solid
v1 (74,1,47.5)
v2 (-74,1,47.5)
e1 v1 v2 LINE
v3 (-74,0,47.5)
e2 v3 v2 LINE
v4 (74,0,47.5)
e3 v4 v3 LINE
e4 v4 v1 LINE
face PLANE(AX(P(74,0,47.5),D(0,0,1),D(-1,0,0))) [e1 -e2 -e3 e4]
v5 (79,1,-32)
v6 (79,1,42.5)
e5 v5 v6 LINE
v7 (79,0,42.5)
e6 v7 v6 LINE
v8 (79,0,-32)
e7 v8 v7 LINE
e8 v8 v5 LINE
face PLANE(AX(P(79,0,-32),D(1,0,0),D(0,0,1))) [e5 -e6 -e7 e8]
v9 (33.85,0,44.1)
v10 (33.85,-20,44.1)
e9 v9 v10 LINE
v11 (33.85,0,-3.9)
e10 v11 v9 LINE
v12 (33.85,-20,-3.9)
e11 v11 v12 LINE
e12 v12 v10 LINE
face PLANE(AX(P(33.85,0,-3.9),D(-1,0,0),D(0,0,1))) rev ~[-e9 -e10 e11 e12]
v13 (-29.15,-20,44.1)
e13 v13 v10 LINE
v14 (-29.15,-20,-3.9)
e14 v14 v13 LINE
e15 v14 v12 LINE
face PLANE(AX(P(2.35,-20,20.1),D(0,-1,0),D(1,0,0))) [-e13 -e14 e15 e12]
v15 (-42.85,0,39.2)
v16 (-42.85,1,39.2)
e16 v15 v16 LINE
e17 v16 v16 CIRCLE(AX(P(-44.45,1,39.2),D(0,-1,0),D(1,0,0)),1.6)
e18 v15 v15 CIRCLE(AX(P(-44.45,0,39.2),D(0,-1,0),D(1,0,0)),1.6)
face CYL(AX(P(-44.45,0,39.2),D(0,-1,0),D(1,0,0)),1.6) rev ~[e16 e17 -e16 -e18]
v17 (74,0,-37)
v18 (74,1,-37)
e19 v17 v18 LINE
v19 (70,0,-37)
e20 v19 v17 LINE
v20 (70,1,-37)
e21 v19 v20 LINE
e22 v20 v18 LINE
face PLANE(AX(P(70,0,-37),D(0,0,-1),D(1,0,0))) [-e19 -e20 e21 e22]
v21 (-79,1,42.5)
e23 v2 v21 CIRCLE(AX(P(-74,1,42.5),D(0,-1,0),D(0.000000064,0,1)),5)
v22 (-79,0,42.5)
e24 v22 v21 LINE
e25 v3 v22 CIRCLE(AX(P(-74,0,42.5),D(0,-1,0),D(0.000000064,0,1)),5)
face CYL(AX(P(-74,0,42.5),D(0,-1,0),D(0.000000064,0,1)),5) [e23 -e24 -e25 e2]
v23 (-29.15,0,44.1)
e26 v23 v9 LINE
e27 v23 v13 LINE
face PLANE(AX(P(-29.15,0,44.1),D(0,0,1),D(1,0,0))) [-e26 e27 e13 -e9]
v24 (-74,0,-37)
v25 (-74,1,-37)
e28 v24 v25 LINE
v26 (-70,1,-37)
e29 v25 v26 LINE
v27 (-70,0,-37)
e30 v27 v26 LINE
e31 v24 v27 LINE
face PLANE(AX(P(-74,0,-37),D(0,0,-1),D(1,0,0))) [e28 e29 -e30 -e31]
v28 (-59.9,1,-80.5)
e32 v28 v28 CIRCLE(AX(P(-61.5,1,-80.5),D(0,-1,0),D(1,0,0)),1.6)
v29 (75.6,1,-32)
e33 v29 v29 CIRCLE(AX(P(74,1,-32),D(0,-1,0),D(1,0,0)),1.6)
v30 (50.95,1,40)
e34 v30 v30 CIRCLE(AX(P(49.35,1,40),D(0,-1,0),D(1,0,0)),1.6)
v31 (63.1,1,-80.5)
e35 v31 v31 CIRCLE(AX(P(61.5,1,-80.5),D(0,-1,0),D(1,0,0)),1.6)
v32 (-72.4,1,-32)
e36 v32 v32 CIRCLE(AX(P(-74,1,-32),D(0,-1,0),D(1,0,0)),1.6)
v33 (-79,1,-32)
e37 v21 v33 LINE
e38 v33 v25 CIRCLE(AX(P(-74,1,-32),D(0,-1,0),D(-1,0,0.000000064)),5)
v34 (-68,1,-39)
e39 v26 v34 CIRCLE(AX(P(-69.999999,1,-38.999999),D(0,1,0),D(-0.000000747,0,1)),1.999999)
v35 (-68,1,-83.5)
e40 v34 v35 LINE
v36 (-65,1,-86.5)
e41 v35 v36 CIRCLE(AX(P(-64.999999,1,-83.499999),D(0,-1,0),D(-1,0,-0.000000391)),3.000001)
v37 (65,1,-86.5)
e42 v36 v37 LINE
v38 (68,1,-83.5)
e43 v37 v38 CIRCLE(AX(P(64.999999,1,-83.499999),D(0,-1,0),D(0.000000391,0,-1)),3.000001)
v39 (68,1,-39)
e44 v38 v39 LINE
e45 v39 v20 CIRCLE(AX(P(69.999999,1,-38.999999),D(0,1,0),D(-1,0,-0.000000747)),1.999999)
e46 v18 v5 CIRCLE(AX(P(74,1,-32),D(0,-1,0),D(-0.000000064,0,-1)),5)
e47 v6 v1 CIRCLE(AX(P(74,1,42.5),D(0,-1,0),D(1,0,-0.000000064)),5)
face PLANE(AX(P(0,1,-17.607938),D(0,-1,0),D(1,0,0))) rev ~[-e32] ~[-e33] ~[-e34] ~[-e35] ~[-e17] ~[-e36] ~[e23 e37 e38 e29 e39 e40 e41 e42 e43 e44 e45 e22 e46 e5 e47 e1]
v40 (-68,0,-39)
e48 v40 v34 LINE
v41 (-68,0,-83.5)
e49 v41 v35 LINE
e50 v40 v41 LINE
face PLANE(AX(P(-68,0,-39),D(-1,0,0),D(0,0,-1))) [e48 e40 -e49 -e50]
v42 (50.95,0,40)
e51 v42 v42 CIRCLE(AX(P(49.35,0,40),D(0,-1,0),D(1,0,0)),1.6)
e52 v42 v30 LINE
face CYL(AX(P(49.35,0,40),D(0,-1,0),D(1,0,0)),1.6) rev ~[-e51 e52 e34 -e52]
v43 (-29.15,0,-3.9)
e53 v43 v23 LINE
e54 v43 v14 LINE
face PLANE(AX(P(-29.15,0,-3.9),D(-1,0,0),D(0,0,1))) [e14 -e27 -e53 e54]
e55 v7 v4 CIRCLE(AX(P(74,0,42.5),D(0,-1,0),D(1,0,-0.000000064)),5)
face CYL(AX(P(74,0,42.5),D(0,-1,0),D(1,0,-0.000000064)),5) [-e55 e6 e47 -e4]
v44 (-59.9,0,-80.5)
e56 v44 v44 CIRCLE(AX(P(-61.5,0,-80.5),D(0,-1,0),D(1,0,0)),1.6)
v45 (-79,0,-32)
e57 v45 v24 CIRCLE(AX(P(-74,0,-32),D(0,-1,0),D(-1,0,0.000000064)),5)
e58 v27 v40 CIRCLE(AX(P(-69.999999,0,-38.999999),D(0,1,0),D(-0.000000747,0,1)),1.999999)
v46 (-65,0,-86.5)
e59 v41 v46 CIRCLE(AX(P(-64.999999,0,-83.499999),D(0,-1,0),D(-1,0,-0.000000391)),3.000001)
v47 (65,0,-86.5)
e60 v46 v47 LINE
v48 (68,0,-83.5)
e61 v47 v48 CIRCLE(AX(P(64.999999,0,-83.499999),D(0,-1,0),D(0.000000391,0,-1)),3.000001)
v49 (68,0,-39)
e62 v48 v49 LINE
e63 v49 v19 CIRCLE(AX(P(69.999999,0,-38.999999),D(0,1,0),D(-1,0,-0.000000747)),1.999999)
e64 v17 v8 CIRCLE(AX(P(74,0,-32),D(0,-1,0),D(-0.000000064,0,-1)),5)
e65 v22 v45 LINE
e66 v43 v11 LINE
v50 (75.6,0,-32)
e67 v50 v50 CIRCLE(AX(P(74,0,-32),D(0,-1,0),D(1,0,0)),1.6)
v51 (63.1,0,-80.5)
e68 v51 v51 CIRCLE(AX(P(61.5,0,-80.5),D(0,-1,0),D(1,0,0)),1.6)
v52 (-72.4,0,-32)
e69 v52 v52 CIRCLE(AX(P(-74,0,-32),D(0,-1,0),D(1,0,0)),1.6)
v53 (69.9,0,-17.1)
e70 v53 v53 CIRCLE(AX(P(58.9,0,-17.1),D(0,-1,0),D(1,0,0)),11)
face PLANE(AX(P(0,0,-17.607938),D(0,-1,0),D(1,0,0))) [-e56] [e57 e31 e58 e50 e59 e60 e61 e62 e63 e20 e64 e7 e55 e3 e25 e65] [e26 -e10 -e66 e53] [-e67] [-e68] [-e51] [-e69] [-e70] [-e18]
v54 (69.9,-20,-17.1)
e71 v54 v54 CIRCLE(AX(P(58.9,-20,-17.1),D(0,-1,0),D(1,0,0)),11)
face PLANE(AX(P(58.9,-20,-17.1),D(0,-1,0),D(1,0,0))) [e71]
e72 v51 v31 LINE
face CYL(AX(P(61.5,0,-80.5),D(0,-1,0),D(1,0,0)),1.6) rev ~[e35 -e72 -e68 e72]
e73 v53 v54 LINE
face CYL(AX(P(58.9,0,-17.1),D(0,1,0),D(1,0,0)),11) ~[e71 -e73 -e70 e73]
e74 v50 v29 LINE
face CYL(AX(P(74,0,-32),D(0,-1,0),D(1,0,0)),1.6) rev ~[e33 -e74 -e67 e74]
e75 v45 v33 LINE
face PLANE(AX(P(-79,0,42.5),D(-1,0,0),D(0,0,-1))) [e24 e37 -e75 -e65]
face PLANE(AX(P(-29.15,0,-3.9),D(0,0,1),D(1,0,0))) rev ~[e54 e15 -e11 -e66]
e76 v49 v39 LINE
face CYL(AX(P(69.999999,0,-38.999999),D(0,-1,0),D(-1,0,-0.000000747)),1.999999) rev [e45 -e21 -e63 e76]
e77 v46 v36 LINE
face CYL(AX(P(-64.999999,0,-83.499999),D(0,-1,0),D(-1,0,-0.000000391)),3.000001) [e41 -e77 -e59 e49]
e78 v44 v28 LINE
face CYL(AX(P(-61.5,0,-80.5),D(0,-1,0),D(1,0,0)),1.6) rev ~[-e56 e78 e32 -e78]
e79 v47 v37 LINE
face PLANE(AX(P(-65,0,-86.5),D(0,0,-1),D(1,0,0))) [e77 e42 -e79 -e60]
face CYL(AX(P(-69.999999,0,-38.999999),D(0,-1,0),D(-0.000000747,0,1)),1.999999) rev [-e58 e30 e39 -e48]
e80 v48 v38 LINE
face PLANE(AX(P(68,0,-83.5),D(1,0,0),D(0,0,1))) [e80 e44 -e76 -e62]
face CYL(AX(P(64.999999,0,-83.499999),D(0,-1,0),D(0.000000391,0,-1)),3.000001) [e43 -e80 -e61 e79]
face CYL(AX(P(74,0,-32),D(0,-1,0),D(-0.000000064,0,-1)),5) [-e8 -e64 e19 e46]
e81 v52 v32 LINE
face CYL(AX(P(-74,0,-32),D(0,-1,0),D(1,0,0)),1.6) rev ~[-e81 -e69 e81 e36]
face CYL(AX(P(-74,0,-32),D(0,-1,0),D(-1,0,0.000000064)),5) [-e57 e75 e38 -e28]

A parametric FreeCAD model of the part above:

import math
import FreeCAD as App
import Part
import Sketcher

doc = App.newDocument("Part")
params = doc.addObject("Spreadsheet::Sheet", "Params")
for row, (alias, value) in enumerate([
    ("sketch1_radius", "5 mm"),
    ("sketch1_radius2", "1.999999 mm"),
    ("sketch1_radius3", "3.000001 mm"),
    ("sketch1_diameter", "3.2 mm"),
    ("sketch1_width", "4 mm"),
    ("pad1_length", "1 mm"),
    ("sketch2_diameter", "22 mm"),
    ("sketch2_width", "63 mm"),
    ("sketch2_height", "48 mm"),
    ("pad2_length", "20 mm"),
], start=1):
    params.set(f"A{row}", alias)
    params.set(f"B{row}", "=" + value)
    params.setAlias(f"B{row}", alias)

body = doc.addObject("PartDesign::Body", "Body")

# Sketch on XZ plane
sketch1 = body.newObject("Sketcher::SketchObject", "Sketch")
sketch1.AttachmentSupport = (doc.getObject("XZ_Plane"), [""])
sketch1.MapMode = "FlatFace"
sketch1.addGeometry([
    Part.LineSegment(App.Vector(-79, 42.5, 0), App.Vector(-79, -32, 0)),  # 0
    Part.ArcOfCircle(Part.Circle(App.Vector(-74, -32, 0), App.Vector(0, 0, 1), 5), math.radians(180), math.radians(270)),  # 1
    Part.LineSegment(App.Vector(-74, -37, 0), App.Vector(-70, -37, 0)),  # 2
    Part.ArcOfCircle(Part.Circle(App.Vector(-70, -39, 0), App.Vector(0, 0, 1), 2), math.radians(0), math.radians(90)),  # 3
    Part.LineSegment(App.Vector(-68, -39, 0), App.Vector(-68, -83.5, 0)),  # 4
    Part.ArcOfCircle(Part.Circle(App.Vector(-65, -83.5, 0), App.Vector(0, 0, 1), 3), math.radians(-180), math.radians(-90)),  # 5
    Part.LineSegment(App.Vector(-65, -86.5, 0), App.Vector(65, -86.5, 0)),  # 6
    Part.ArcOfCircle(Part.Circle(App.Vector(65, -83.5, 0), App.Vector(0, 0, 1), 3), math.radians(-90), math.radians(0)),  # 7
    Part.LineSegment(App.Vector(68, -83.5, 0), App.Vector(68, -39, 0)),  # 8
    Part.ArcOfCircle(Part.Circle(App.Vector(70, -39, 0), App.Vector(0, 0, 1), 2), math.radians(90), math.radians(180)),  # 9
    Part.LineSegment(App.Vector(70, -37, 0), App.Vector(74, -37, 0)),  # 10
    Part.ArcOfCircle(Part.Circle(App.Vector(74, -32, 0), App.Vector(0, 0, 1), 5), math.radians(-90), math.radians(0)),  # 11
    Part.LineSegment(App.Vector(79, -32, 0), App.Vector(79, 42.5, 0)),  # 12
    Part.ArcOfCircle(Part.Circle(App.Vector(74, 42.5, 0), App.Vector(0, 0, 1), 5), math.radians(0), math.radians(90)),  # 13
    Part.LineSegment(App.Vector(74, 47.5, 0), App.Vector(-74, 47.5, 0)),  # 14
    Part.ArcOfCircle(Part.Circle(App.Vector(-74, 42.5, 0), App.Vector(0, 0, 1), 5), math.radians(90), math.radians(180)),  # 15
    Part.Circle(App.Vector(-61.5, -80.5, 0), App.Vector(0, 0, 1), 1.6),  # 16
    Part.Circle(App.Vector(-74, -32, 0), App.Vector(0, 0, 1), 1.6),  # 17
    Part.Circle(App.Vector(61.5, -80.5, 0), App.Vector(0, 0, 1), 1.6),  # 18
    Part.Circle(App.Vector(74, -32, 0), App.Vector(0, 0, 1), 1.6),  # 19
    Part.Circle(App.Vector(-44.5, 39.2, 0), App.Vector(0, 0, 1), 1.6),  # 20
    Part.Circle(App.Vector(49.4, 40, 0), App.Vector(0, 0, 1), 1.6),  # 21
], False)
sketch1.addConstraint([
    Sketcher.Constraint("Tangent", 0, 2, 1, 1),
    Sketcher.Constraint("Tangent", 1, 2, 2, 1),
    Sketcher.Constraint("Tangent", 2, 2, 3, 2),
    Sketcher.Constraint("Tangent", 3, 1, 4, 1),
    Sketcher.Constraint("Tangent", 4, 2, 5, 1),
    Sketcher.Constraint("Tangent", 5, 2, 6, 1),
    Sketcher.Constraint("Tangent", 6, 2, 7, 1),
    Sketcher.Constraint("Tangent", 7, 2, 8, 1),
    Sketcher.Constraint("Tangent", 8, 2, 9, 2),
    Sketcher.Constraint("Tangent", 9, 1, 10, 1),
    Sketcher.Constraint("Tangent", 10, 2, 11, 1),
    Sketcher.Constraint("Tangent", 11, 2, 12, 1),
    Sketcher.Constraint("Tangent", 12, 2, 13, 1),
    Sketcher.Constraint("Tangent", 13, 2, 14, 1),
    Sketcher.Constraint("Tangent", 14, 2, 15, 1),
    Sketcher.Constraint("Tangent", 15, 2, 0, 1),
    Sketcher.Constraint("Vertical", 0),
    Sketcher.Constraint("Horizontal", 2),
    Sketcher.Constraint("Vertical", 4),
    Sketcher.Constraint("Horizontal", 6),
    Sketcher.Constraint("Vertical", 8),
    Sketcher.Constraint("Horizontal", 10),
    Sketcher.Constraint("Vertical", 12),
    Sketcher.Constraint("Horizontal", 14),
    Sketcher.Constraint("Coincident", 17, 3, 1, 3),
    Sketcher.Constraint("Coincident", 19, 3, 11, 3),
    Sketcher.Constraint("Equal", 5, 7),
    Sketcher.Constraint("Equal", 3, 9),
    Sketcher.Constraint("Equal", 1, 11),
    Sketcher.Constraint("Equal", 11, 13),
    Sketcher.Constraint("Equal", 13, 15),
    Sketcher.Constraint("Equal", 16, 17),
    Sketcher.Constraint("Equal", 17, 18),
    Sketcher.Constraint("Equal", 18, 19),
    Sketcher.Constraint("Equal", 19, 20),
    Sketcher.Constraint("Equal", 20, 21),
    Sketcher.Constraint("Symmetric", 3, 3, 9, 3, -2),
    Sketcher.Constraint("Symmetric", 16, 3, 18, 3, -2),
    Sketcher.Constraint("Equal", 2, 10),
    Sketcher.Constraint("Radius", 1, 5.0),
    Sketcher.Constraint("Radius", 3, 1.999999),
    Sketcher.Constraint("Radius", 5, 3.000001),
    Sketcher.Constraint("Diameter", 16, 3.2),
    Sketcher.Constraint("DistanceX", 2, 1, 2, 2, 4.0),
    Sketcher.Constraint("DistanceX", 6, 1, 6, 2, 130.0),
    Sketcher.Constraint("DistanceY", 0, 2, 0, 1, 74.5),
    Sketcher.Constraint("DistanceY", 4, 2, 4, 1, 44.5),
    Sketcher.Constraint("DistanceY", 1, 3, -1, 1, 32.0),
    Sketcher.Constraint("DistanceY", -1, 1, 21, 3, 40.0),
    Sketcher.Constraint("DistanceY", 5, 3, 16, 3, 2.999999),
    Sketcher.Constraint("DistanceX", 16, 3, 18, 3, 123.0),
    Sketcher.Constraint("DistanceY", -1, 1, 20, 3, 39.2),
    Sketcher.Constraint("DistanceX", 20, 3, 21, 3, 93.8),
    Sketcher.Constraint("DistanceX", 20, 3, -1, 1, 44.45),
])
sketch1.setExpression("Constraints[39]", "Params.sketch1_radius")
sketch1.setExpression("Constraints[40]", "Params.sketch1_radius2")
sketch1.setExpression("Constraints[41]", "Params.sketch1_radius3")
sketch1.setExpression("Constraints[42]", "Params.sketch1_diameter")
sketch1.setExpression("Constraints[43]", "Params.sketch1_width")
pad1 = body.newObject("PartDesign::Pad", "Pad")
pad1.Profile = sketch1
pad1.setExpression("Length", "Params.pad1_length")
pad1.Reversed = True

# Sketch on XZ plane
sketch2 = body.newObject("Sketcher::SketchObject", "Sketch001")
sketch2.AttachmentSupport = (doc.getObject("XZ_Plane"), [""])
sketch2.MapMode = "FlatFace"
sketch2.addGeometry([
    Part.LineSegment(App.Vector(-29, 44, 0), App.Vector(-29, -4, 0)),  # 0
    Part.LineSegment(App.Vector(-29, -4, 0), App.Vector(34, -4, 0)),  # 1
    Part.LineSegment(App.Vector(34, -4, 0), App.Vector(34, 44, 0)),  # 2
    Part.LineSegment(App.Vector(34, 44, 0), App.Vector(-29, 44, 0)),  # 3
    Part.Circle(App.Vector(59, -17, 0), App.Vector(0, 0, 1), 11),  # 4
], False)
sketch2.addConstraint([
    Sketcher.Constraint("Coincident", 0, 2, 1, 1),
    Sketcher.Constraint("Coincident", 1, 2, 2, 1),
    Sketcher.Constraint("Coincident", 2, 2, 3, 1),
    Sketcher.Constraint("Coincident", 3, 2, 0, 1),
    Sketcher.Constraint("Vertical", 0),
    Sketcher.Constraint("Horizontal", 1),
    Sketcher.Constraint("Vertical", 2),
    Sketcher.Constraint("Horizontal", 3),
    Sketcher.Constraint("Diameter", 4, 22.0),
    Sketcher.Constraint("DistanceX", 1, 1, 1, 2, 63.0),
    Sketcher.Constraint("DistanceY", 0, 2, 0, 1, 48.0),
    Sketcher.Constraint("DistanceX", -1, 1, 4, 3, 58.9),
    Sketcher.Constraint("DistanceY", 4, 3, -1, 1, 17.1),
    Sketcher.Constraint("DistanceY", 0, 2, -1, 1, 3.9),
    Sketcher.Constraint("DistanceX", 0, 2, -1, 1, 29.15),
])
sketch2.setExpression("Constraints[8]", "Params.sketch2_diameter")
sketch2.setExpression("Constraints[9]", "Params.sketch2_width")
sketch2.setExpression("Constraints[10]", "Params.sketch2_height")
pad2 = body.newObject("PartDesign::Pad", "Pad001")
pad2.Profile = sketch2
pad2.setExpression("Length", "Params.pad2_length")

doc.recompute()
